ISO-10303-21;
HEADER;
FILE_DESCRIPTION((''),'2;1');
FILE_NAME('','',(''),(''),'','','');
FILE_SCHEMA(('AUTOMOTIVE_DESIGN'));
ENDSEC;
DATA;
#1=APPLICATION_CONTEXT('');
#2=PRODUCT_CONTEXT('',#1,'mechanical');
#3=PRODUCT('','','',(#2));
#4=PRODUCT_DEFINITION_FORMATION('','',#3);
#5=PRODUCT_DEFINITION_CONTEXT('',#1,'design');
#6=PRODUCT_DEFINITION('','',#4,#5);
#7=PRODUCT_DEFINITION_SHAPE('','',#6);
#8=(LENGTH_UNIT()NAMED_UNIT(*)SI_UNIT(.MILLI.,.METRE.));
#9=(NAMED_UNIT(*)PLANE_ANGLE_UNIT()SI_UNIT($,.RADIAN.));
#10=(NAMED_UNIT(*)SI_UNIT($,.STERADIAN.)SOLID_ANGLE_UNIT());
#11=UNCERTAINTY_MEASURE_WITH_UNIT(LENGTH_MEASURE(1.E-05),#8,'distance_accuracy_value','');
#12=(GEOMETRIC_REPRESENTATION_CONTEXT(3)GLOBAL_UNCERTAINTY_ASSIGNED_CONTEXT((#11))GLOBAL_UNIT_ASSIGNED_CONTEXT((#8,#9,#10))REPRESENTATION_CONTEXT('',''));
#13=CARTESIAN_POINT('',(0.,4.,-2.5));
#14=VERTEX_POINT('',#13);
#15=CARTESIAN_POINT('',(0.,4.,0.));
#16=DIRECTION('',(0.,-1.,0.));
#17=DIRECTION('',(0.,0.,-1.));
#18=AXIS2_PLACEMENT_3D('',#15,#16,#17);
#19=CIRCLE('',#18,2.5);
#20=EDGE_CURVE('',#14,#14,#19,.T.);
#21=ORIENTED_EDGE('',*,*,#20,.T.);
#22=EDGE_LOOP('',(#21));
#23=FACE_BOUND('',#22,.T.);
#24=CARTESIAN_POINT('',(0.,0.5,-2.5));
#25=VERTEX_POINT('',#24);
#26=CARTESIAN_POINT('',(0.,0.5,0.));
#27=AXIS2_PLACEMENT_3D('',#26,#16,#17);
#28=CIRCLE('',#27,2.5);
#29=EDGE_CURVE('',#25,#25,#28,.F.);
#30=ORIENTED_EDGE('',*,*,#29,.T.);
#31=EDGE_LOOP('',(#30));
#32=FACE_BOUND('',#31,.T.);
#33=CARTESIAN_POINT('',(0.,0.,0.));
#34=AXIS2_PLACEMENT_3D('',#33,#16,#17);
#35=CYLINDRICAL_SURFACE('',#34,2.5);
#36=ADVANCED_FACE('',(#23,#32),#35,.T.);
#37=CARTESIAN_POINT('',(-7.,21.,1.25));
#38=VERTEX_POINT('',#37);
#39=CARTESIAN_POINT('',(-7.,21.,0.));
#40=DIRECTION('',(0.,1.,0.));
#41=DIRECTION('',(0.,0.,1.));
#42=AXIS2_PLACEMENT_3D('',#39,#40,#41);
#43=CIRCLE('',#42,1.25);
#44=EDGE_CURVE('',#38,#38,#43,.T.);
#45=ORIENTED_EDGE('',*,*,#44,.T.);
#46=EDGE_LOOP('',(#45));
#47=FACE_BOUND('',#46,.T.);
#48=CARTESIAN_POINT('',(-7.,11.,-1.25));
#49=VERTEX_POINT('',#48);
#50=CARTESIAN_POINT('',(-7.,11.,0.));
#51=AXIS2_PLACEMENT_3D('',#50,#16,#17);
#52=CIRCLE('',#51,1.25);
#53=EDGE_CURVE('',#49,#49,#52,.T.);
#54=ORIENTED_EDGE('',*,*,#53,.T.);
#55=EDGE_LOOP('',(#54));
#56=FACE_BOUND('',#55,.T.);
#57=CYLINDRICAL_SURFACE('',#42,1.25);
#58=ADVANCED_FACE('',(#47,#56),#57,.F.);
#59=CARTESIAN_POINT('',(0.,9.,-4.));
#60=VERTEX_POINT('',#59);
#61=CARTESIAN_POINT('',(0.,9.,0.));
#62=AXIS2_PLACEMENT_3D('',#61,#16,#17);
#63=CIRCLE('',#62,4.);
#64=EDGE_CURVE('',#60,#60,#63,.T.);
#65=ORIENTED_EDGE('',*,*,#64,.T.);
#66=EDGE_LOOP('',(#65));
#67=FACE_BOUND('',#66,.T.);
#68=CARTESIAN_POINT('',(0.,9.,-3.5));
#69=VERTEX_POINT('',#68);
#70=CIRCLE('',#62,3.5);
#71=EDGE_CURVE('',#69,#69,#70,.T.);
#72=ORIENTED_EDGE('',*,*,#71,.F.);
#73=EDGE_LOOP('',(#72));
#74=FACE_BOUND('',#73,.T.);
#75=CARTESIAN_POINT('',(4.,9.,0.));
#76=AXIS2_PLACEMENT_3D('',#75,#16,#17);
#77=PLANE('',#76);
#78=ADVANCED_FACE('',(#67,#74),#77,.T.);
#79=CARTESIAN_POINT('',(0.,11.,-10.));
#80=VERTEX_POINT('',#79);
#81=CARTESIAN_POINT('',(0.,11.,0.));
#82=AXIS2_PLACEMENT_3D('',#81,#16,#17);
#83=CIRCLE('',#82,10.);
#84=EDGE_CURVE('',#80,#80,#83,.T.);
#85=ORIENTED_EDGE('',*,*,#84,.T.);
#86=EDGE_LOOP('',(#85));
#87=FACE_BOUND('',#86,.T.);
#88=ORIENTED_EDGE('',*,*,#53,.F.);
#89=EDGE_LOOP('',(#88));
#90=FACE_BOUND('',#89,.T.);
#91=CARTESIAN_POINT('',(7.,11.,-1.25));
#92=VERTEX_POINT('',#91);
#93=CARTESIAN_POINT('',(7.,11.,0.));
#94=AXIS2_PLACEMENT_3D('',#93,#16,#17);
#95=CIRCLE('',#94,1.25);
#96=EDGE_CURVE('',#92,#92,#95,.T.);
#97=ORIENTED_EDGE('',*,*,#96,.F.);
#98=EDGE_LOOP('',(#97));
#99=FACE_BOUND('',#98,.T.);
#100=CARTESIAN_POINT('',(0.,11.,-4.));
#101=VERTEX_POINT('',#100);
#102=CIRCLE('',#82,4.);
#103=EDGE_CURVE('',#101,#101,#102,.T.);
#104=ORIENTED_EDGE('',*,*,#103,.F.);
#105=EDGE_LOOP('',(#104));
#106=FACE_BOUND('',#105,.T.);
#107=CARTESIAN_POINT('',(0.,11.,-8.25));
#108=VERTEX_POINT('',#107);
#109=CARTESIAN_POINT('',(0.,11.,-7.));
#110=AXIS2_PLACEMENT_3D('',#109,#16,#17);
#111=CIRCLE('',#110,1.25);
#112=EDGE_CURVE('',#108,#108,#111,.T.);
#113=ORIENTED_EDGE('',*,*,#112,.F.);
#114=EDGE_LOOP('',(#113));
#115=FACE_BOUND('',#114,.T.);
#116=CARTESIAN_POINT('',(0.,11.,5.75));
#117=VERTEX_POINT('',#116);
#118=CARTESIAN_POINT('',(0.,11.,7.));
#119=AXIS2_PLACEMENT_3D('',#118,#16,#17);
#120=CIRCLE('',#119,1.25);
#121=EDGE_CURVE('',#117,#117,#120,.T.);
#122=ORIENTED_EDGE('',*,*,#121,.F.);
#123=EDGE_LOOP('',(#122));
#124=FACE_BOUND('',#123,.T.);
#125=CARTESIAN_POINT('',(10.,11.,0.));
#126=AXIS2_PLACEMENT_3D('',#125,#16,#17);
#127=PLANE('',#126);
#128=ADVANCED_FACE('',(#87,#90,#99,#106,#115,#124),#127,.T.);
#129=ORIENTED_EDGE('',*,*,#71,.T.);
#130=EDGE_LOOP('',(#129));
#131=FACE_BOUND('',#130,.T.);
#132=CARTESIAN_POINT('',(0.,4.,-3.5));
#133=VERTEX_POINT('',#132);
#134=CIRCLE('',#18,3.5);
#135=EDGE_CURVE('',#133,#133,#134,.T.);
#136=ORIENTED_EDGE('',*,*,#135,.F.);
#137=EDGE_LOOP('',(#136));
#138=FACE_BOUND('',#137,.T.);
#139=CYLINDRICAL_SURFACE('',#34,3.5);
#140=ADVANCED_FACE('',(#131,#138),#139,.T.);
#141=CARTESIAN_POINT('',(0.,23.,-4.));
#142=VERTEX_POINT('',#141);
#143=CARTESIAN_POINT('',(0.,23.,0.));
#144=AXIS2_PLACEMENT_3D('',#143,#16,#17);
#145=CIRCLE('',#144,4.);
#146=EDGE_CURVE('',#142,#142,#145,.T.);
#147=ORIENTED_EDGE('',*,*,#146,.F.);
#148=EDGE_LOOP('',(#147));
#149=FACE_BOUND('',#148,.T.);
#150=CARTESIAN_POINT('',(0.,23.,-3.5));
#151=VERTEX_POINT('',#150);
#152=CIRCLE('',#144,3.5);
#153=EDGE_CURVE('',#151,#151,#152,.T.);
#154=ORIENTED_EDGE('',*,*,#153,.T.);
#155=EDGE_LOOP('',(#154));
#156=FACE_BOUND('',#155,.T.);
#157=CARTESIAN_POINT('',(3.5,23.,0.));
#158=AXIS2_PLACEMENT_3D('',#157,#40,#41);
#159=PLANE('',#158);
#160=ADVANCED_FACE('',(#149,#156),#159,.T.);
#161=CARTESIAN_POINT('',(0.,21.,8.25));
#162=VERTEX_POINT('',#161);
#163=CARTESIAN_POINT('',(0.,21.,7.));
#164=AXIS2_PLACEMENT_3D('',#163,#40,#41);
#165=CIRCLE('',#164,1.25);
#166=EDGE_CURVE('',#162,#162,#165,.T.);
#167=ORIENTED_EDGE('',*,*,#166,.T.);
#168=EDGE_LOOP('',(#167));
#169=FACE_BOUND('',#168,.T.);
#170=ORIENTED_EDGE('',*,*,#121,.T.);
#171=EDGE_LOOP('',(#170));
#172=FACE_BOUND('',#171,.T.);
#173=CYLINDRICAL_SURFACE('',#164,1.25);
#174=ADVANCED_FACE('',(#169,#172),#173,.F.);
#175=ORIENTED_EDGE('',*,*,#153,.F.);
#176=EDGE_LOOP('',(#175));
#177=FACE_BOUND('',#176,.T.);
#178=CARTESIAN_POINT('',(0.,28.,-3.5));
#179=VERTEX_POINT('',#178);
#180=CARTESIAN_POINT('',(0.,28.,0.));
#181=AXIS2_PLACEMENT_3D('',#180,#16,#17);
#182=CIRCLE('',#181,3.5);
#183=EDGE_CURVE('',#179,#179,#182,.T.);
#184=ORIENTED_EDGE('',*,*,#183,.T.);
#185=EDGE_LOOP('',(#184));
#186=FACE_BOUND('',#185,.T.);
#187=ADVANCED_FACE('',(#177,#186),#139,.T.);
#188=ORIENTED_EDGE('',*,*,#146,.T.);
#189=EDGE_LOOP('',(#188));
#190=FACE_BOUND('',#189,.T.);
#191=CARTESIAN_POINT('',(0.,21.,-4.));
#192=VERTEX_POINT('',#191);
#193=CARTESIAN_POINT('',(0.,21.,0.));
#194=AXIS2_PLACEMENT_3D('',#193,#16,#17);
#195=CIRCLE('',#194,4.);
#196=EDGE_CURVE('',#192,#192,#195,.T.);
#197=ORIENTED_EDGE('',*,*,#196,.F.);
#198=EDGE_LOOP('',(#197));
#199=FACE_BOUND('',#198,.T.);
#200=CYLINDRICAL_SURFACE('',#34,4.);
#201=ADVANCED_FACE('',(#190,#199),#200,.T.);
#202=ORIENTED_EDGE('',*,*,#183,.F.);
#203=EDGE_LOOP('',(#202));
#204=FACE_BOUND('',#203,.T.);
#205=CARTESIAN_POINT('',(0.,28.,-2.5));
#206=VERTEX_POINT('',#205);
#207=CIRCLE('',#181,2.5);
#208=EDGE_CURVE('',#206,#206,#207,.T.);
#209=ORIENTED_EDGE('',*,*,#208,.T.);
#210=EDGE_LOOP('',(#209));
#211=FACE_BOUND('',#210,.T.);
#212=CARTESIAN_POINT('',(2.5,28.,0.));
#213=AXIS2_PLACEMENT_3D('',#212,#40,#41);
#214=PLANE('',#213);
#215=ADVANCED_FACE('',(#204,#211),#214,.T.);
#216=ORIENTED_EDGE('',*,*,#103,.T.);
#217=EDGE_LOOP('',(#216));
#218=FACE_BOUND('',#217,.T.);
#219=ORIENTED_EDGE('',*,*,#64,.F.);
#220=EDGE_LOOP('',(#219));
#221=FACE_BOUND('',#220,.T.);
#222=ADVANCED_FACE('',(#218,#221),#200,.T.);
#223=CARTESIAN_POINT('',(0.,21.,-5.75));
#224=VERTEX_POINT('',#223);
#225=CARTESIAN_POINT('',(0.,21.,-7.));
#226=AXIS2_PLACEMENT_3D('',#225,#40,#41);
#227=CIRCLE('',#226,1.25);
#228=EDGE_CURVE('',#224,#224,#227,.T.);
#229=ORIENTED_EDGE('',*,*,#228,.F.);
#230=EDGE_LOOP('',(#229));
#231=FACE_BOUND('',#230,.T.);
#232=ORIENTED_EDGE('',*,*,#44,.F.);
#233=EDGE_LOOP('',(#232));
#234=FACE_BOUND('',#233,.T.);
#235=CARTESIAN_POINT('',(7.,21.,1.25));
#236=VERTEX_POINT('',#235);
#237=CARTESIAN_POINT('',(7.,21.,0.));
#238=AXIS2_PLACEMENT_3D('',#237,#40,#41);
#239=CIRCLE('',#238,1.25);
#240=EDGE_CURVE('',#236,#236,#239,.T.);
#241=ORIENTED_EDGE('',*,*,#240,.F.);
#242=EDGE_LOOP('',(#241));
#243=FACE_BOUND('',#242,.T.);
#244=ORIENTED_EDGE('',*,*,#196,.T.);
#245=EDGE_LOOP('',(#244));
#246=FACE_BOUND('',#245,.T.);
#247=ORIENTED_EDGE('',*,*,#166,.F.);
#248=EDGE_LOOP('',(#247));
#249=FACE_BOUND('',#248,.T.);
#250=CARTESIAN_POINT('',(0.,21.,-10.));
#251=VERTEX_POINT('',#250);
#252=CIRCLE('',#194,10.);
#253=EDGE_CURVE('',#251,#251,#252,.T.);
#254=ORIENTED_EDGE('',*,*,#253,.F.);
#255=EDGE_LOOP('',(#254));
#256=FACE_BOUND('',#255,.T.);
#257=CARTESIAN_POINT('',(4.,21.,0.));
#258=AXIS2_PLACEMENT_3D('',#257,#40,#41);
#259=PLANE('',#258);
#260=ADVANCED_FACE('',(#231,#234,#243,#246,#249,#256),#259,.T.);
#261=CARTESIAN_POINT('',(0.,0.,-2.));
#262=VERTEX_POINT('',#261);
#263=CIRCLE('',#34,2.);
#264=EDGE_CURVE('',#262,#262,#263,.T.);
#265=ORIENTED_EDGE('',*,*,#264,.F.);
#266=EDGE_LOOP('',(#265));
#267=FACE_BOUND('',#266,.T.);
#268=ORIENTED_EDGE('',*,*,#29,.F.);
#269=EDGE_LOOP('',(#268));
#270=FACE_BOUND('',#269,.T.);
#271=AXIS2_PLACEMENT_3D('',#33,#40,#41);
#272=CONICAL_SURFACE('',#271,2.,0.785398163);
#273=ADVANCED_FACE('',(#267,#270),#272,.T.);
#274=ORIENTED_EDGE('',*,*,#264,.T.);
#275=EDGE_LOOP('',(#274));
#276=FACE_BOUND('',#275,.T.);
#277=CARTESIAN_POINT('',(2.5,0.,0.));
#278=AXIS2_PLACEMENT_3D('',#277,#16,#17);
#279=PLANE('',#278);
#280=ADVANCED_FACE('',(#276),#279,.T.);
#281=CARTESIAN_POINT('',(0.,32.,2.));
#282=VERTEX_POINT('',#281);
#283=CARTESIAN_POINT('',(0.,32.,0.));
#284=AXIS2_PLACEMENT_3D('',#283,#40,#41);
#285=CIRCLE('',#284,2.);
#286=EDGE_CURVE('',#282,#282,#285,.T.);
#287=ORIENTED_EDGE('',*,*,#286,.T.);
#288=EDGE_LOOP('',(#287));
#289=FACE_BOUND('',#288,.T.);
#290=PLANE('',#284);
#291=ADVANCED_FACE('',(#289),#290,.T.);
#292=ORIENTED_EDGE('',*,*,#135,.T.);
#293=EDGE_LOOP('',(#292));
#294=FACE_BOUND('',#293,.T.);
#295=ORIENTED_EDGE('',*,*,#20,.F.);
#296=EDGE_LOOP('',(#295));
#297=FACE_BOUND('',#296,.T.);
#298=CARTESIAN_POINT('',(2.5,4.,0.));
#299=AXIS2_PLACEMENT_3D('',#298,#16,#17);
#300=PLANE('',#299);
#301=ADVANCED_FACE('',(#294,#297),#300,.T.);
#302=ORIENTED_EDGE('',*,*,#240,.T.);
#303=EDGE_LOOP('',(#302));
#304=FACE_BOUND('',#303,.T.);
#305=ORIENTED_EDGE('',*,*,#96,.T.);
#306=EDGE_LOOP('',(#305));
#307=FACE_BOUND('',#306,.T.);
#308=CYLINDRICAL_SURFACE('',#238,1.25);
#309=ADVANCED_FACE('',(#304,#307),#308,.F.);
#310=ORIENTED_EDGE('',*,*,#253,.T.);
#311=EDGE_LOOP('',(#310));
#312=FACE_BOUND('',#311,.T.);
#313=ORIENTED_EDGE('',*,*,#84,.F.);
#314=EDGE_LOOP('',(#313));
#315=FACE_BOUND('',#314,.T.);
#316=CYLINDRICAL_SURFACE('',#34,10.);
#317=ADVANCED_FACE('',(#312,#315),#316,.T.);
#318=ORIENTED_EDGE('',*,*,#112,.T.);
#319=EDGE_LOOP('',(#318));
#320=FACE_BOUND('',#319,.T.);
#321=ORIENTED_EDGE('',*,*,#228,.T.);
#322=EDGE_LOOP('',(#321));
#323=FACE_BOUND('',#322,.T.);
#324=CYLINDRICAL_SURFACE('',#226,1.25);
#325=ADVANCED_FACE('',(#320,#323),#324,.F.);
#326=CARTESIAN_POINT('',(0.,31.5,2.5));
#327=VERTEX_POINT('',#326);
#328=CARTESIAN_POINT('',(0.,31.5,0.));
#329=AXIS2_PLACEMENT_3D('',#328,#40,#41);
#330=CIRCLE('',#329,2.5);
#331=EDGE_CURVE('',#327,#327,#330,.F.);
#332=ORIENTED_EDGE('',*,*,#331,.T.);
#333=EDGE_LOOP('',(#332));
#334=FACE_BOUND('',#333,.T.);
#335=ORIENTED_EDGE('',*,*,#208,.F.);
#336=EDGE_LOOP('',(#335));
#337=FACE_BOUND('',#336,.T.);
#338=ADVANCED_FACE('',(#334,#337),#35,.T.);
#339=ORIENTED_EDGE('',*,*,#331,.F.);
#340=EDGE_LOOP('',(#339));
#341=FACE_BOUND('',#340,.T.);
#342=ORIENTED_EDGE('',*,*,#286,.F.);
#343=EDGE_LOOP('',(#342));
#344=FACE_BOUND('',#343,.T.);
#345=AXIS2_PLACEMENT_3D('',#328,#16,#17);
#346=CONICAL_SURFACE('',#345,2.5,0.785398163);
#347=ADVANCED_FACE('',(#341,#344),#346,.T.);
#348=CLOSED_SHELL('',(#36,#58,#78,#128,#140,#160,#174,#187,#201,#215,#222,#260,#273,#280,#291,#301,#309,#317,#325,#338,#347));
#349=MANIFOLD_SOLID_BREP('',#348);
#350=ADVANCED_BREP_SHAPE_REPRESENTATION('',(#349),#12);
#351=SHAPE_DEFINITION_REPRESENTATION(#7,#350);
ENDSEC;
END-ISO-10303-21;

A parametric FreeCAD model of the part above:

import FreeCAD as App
import Part
import Sketcher
Q = App.Units.Quantity


def edges_at(feature, points):
    """Names of the edges that pass closest to the given points."""
    edges = feature.Shape.Edges
    near = lambda p: min(range(len(edges)), key=lambda i: edges[i].distToShape(Part.Vertex(*p))[0])
    return sorted({f"Edge{near(p) + 1}" for p in points})


def add_polygon(sketch, points):
    """Adds a closed chain of lines whose ends are joined by coincident constraints."""
    first, n = sketch.GeometryCount, len(points)
    for a, b in zip(points, points[1:] + points[:1]):
        sketch.addGeometry(Part.LineSegment(App.Vector(*a, 0), App.Vector(*b, 0)), False)
    for i in range(n):
        sketch.addConstraint(Sketcher.Constraint("Coincident", first + i, 2, first + (i + 1) % n, 1))

doc = App.newDocument("Part")
params = doc.addObject("Spreadsheet::Sheet", "Params")
for row, (alias, value) in enumerate([
    ("sketch1_width", "1 mm"),
    ("sketch1_width2", "6 mm"),
    ("sketch1_height", "32 mm"),
    ("sketch1_height2", "4 mm"),
    ("sketch1_height3", "5 mm"),
    ("revolution_angle", "360 deg"),
    ("sketch2_diameter", "2.5 mm"),
    ("hole_diameter", "2.5 mm"),
    ("chamfer_size", "0.5 mm"),
], start=1):
    params.set(f"A{row}", alias)
    params.set(f"B{row}", "=" + value)
    params.setAlias(f"B{row}", alias)

body = doc.addObject("PartDesign::Body", "Body")

# Sketch on XY plane
sketch1 = body.newObject("Sketcher::SketchObject", "Sketch")
sketch1.AttachmentSupport = (doc.getObject("XY_Plane"), [""])
sketch1.MapMode = "FlatFace"
add_polygon(sketch1, [(0, 32), (0, 0), (2.5, 0), (2.5, 4), (3.5, 4), (3.5, 9), (4, 9), (4, 11), (10, 11), (10, 21), (4, 21), (4, 23), (3.5, 23), (3.5, 28), (2.5, 28), (2.5, 32)])  # lines 0-15
sketch1.addConstraint([
    Sketcher.Constraint("Vertical", 0),
    Sketcher.Constraint("Horizontal", 1),
    Sketcher.Constraint("Vertical", 2),
    Sketcher.Constraint("Horizontal", 3),
    Sketcher.Constraint("Vertical", 4),
    Sketcher.Constraint("Horizontal", 5),
    Sketcher.Constraint("Vertical", 6),
    Sketcher.Constraint("Horizontal", 7),
    Sketcher.Constraint("Vertical", 8),
    Sketcher.Constraint("Horizontal", 9),
    Sketcher.Constraint("Vertical", 10),
    Sketcher.Constraint("Horizontal", 11),
    Sketcher.Constraint("Vertical", 12),
    Sketcher.Constraint("Horizontal", 13),
    Sketcher.Constraint("Vertical", 14),
    Sketcher.Constraint("Horizontal", 15),
    Sketcher.Constraint("Coincident", 0, 2, -1, 1),
    Sketcher.Constraint("Vertical", 6, 2, 9, 2),
    Sketcher.Constraint("Vertical", 4, 2, 11, 2),
    Sketcher.Constraint("Vertical", 2, 2, 13, 2),
    Sketcher.Constraint("Equal", 6, 10),
    Sketcher.Constraint("Equal", 4, 12),
    Sketcher.Constraint("Equal", 2, 14),
    Sketcher.Constraint("DistanceX", 3, 1, 3, 2, Q("1 mm")),
    Sketcher.Constraint("DistanceX", 7, 1, 7, 2, Q("6 mm")),
    Sketcher.Constraint("DistanceY", 0, 2, 0, 1, Q("32 mm")),
    Sketcher.Constraint("DistanceY", 2, 1, 2, 2, Q("4 mm")),
    Sketcher.Constraint("DistanceY", 4, 1, 4, 2, Q("5 mm")),
    Sketcher.Constraint("DistanceY", 6, 1, 6, 2, Q("2 mm")),
    Sketcher.Constraint("DistanceX", 1, 1, 1, 2, Q("2.5 mm")),
    Sketcher.Constraint("DistanceX", 5, 1, 5, 2, Q("0.5 mm")),
])
sketch1.setExpression("Constraints[39]", "Params.sketch1_width")
sketch1.setExpression("Constraints[40]", "Params.sketch1_width2")
sketch1.setExpression("Constraints[41]", "Params.sketch1_height")
sketch1.setExpression("Constraints[42]", "Params.sketch1_height2")
sketch1.setExpression("Constraints[43]", "Params.sketch1_height3")
revolution = body.newObject("PartDesign::Revolution", "Revolution")
revolution.Profile = sketch1
revolution.ReferenceAxis = (sketch1, ["V_Axis"])
revolution.setExpression("Angle", "Params.revolution_angle")

# Sketch on XZ plane
sketch2 = body.newObject("Sketcher::SketchObject", "Sketch001")
sketch2.AttachmentSupport = (doc.getObject("XZ_Plane"), [""])
sketch2.MapMode = "FlatFace"
sketch2.AttachmentOffset = App.Placement(App.Vector(0, 0, -21), App.Rotation())
sketch2.addGeometry([
    Part.Circle(App.Vector(0, -7, 0), App.Vector(0, 0, 1), 1.2),
    Part.Circle(App.Vector(7, 0, 0), App.Vector(0, 0, 1), 1.2),
    Part.Circle(App.Vector(0, 7, 0), App.Vector(0, 0, 1), 1.2),
    Part.Circle(App.Vector(-7, 0, 0), App.Vector(0, 0, 1), 1.2),
], False)
sketch2.addConstraint([
    Sketcher.Constraint("Equal", 0, 1),
    Sketcher.Constraint("Equal", 1, 2),
    Sketcher.Constraint("Equal", 2, 3),
    Sketcher.Constraint("Symmetric", 0, 3, 2, 3, -1, 1),
    Sketcher.Constraint("Symmetric", 1, 3, 3, 3, -1, 1),
    Sketcher.Constraint("PointOnObject", 0, 3, -2),
    Sketcher.Constraint("PointOnObject", 1, 3, -1),
    Sketcher.Constraint("Diameter", 0, Q("2.5 mm")),
    Sketcher.Constraint("DistanceY", 0, 3, -1, 1, Q("7 mm")),
    Sketcher.Constraint("DistanceX", -1, 1, 1, 3, Q("7 mm")),
])
sketch2.setExpression("Constraints[7]", "Params.sketch2_diameter")
doc.recompute()
hole = body.newObject("PartDesign::Hole", "Hole")
hole.Profile = sketch2
hole.ThreadType = "None"
hole.setExpression("Diameter", "Params.hole_diameter")
hole.DepthType = "ThroughAll"
hole.Reversed = True
doc.recompute()

chamfer = body.newObject("PartDesign::Chamfer", "Chamfer")
chamfer.Base = (hole, edges_at(hole, [(0, 0, 2.5), (0, 32, 2.5)]))
chamfer.setExpression("Size", "Params.chamfer_size")

doc.recompute()
